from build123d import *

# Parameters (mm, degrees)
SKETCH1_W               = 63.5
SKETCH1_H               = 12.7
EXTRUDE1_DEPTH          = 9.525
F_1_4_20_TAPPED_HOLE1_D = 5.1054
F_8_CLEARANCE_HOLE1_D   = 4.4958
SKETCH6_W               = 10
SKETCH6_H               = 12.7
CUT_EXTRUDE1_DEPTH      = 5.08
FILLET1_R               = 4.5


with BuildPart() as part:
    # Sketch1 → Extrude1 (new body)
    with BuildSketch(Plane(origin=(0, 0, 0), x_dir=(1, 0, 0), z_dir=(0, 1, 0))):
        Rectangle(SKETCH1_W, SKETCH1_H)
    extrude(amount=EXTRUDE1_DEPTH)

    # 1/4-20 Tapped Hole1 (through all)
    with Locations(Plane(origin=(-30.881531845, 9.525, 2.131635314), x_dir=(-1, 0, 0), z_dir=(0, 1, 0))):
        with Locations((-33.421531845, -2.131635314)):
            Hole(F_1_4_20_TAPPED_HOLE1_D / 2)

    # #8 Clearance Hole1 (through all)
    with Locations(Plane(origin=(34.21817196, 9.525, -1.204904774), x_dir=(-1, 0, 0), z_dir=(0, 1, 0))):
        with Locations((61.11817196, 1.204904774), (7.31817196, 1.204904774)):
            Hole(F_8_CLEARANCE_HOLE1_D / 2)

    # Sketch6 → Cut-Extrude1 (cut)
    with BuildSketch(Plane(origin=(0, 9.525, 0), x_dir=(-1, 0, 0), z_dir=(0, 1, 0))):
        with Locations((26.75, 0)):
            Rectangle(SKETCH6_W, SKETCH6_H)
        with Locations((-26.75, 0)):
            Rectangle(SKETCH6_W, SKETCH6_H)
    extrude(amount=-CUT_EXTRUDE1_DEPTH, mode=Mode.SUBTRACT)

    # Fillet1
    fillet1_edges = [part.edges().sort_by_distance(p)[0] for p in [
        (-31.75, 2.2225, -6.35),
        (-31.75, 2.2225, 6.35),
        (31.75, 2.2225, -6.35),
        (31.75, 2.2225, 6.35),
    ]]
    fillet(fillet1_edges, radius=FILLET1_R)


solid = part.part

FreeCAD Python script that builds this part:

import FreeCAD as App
import Part
import Sketcher

V = App.Vector
Q = App.Units.Quantity


def edges_at(feature, points):
    """Names of the edges that pass closest to the given points."""
    edges = feature.Shape.Edges
    near = lambda p: min(range(len(edges)), key=lambda i: edges[i].distToShape(Part.Vertex(*p))[0])
    return sorted({f"Edge{near(p) + 1}" for p in points})


def add_polygon(sketch, points):
    """Adds a closed chain of lines whose ends are joined by coincident constraints."""
    first, n = sketch.GeometryCount, len(points)
    for a, b in zip(points, points[1:] + points[:1]):
        sketch.addGeometry(Part.LineSegment(App.Vector(*a, 0), App.Vector(*b, 0)), False)
    for i in range(n):
        sketch.addConstraint(Sketcher.Constraint("Coincident", first + i, 2, first + (i + 1) % n, 1))

doc = App.newDocument("Part")
body = doc.addObject("PartDesign::Body", "Body")

# Sketch on XZ plane
sketch1 = doc.addObject("Sketcher::SketchObject", "Sketch")
body.addObject(sketch1)
sketch1.AttachmentSupport = (doc.XZ_Plane, [""])
sketch1.MapMode = "FlatFace"
add_polygon(sketch1, [(-32, -6), (-32, 6), (32, 6), (32, -6)])  # lines 0-3
sketch1.addConstraint([
    Sketcher.Constraint("Vertical", 0),
    Sketcher.Constraint("Horizontal", 1),
    Sketcher.Constraint("Vertical", 2),
    Sketcher.Constraint("Horizontal", 3),
    Sketcher.Constraint("Symmetric", 0, 2, 2, 2, -1, 1),
    Sketcher.Constraint("DistanceX", 1, 1, 1, 2, Q("2.5 in")),
    Sketcher.Constraint("DistanceY", 0, 1, 0, 2, Q("0.5 in")),
])
pad1 = doc.addObject("PartDesign::Pad", "Pad")
body.addObject(pad1)
pad1.Profile = sketch1
pad1.Length = Q("0.375 in")
pad1.Reversed = True

# Sketch on XZ plane
sketch2 = doc.addObject("Sketcher::SketchObject", "Sketch001")
body.addObject(sketch2)
sketch2.AttachmentSupport = (doc.XZ_Plane, [""])
sketch2.MapMode = "FlatFace"
sketch2.AttachmentOffset = App.Placement(V(0, 0, -0.375 * 25.4), App.Rotation())
sketch2.addGeometry(Part.Circle(V(2.5, 0, 0), V(0, 0, 1), 2.6), False)
sketch2.addConstraint([
    Sketcher.Constraint("PointOnObject", 0, 3, -1),
    Sketcher.Constraint("Diameter", 0, Q("0.201 in")),
    Sketcher.Constraint("DistanceX", -1, 1, 0, 3, Q("0.1 in")),
])
doc.recompute()
hole = doc.addObject("PartDesign::Hole", "Hole")
body.addObject(hole)
hole.Profile = sketch2
hole.ThreadType = "None"
hole.Diameter = Q("0.201 in")
hole.DepthType = "ThroughAll"
hole.Reversed = True

# Sketch on XZ plane
sketch3 = doc.addObject("Sketcher::SketchObject", "Sketch002")
body.addObject(sketch3)
sketch3.AttachmentSupport = (doc.XZ_Plane, [""])
sketch3.MapMode = "FlatFace"
sketch3.AttachmentOffset = App.Placement(V(0, 0, -0.375 * 25.4), App.Rotation())
sketch3.addGeometry([
    Part.Circle(V(-26.9, 0, 0), V(0, 0, 1), 2.2),
    Part.Circle(V(26.9, 0, 0), V(0, 0, 1), 2.2),
], False)
sketch3.addConstraint([
    Sketcher.Constraint("Equal", 0, 1),
    Sketcher.Constraint("Symmetric", 0, 3, 1, 3, -1, 1),
    Sketcher.Constraint("PointOnObject", 0, 3, -1),
    Sketcher.Constraint("Diameter", 0, Q("0.177 in")),
    Sketcher.Constraint("DistanceX", 0, 3, -1, 1, Q("26.9 mm")),
])
doc.recompute()
hole2 = doc.addObject("PartDesign::Hole", "Hole001")
body.addObject(hole2)
hole2.Profile = sketch3
hole2.ThreadType = "None"
hole2.Diameter = Q("0.177 in")
hole2.DepthType = "ThroughAll"
hole2.Reversed = True

# Sketch on XZ plane
sketch4 = doc.addObject("Sketcher::SketchObject", "Sketch003")
body.addObject(sketch4)
sketch4.AttachmentSupport = (doc.XZ_Plane, [""])
sketch4.MapMode = "FlatFace"
sketch4.AttachmentOffset = App.Placement(V(0, 0, -0.375 * 25.4), App.Rotation())
add_polygon(sketch4, [(-22, 6), (-22, -6), (-32, -6), (-32, 6)])  # lines 0-3
add_polygon(sketch4, [(32, 6), (32, -6), (22, -6), (22, 6)])  # lines 4-7
sketch4.addConstraint([
    Sketcher.Constraint("Vertical", 0),
    Sketcher.Constraint("Horizontal", 1),
    Sketcher.Constraint("Vertical", 2),
    Sketcher.Constraint("Horizontal", 3),
    Sketcher.Constraint("Vertical", 4),
    Sketcher.Constraint("Horizontal", 5),
    Sketcher.Constraint("Vertical", 6),
    Sketcher.Constraint("Horizontal", 7),
    Sketcher.Constraint("Symmetric", 2, 2, 4, 2, -1, 1),
    Sketcher.Constraint("Symmetric", 0, 2, 6, 2, -1, 1),
    Sketcher.Constraint("Horizontal", 1, 2, 4, 2),
    Sketcher.Constraint("DistanceY", 0, 2, 0, 1, Q("0.5 in")),
    Sketcher.Constraint("DistanceX", 1, 2, 4, 2, Q("2.5 in")),
    Sketcher.Constraint("DistanceX", 1, 2, 1, 1, Q("10 mm")),
])
pocket1 = doc.addObject("PartDesign::Pocket", "Pocket")
body.addObject(pocket1)
pocket1.Profile = sketch4
pocket1.Length = Q("0.2 in")
pocket1.Reversed = True
doc.recompute()

fillet = doc.addObject("PartDesign::Fillet", "Fillet")
body.addObject(fillet)
fillet.Base = (pocket1, edges_at(pocket1, [
    (-31.75, 2.223, -6.35),
    (-31.75, 2.223, 6.35),
    (31.75, 2.223, -6.35),
    (31.75, 2.223, 6.35),
]))
fillet.Radius = 4.5

doc.recompute()
